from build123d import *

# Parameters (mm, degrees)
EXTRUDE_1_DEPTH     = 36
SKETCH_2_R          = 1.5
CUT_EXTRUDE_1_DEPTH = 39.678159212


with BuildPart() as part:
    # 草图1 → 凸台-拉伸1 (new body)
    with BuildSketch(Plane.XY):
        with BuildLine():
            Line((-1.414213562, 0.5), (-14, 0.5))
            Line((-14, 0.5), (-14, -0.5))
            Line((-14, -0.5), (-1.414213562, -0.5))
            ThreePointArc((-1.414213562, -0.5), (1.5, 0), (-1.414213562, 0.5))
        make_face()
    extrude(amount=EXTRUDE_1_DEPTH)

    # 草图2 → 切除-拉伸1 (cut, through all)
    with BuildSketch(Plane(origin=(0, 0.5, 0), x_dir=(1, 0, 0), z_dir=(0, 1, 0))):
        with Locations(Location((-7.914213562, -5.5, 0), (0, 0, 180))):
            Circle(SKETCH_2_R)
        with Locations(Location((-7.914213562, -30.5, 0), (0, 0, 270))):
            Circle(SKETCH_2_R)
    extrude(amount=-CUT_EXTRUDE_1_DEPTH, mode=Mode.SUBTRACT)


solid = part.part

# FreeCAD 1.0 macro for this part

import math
import FreeCAD as App
import Part
import Sketcher

doc = App.newDocument("Part")
params = doc.addObject("Spreadsheet::Sheet", "Params")
for row, (alias, value) in enumerate([
    ("sketch1_radius", "1.5 mm"),
    ("sketch1_height", "1 mm"),
    ("pad1_length", "36 mm"),
    ("sketch2_diameter", "3 mm"),
], start=1):
    params.set(f"A{row}", alias)
    params.set(f"B{row}", "=" + value)
    params.setAlias(f"B{row}", alias)

body = doc.addObject("PartDesign::Body", "Body")

# Sketch on XY plane
sketch1 = body.newObject("Sketcher::SketchObject", "Sketch")
sketch1.AttachmentSupport = (doc.getObject("XY_Plane"), [""])
sketch1.MapMode = "FlatFace"
sketch1.addGeometry(Part.LineSegment(App.Vector(-1.4, 0.5, 0), App.Vector(-14, 0.5, 0)), False)
sketch1.addGeometry(Part.LineSegment(App.Vector(-14, 0.5, 0), App.Vector(-14, -0.5, 0)), False)
sketch1.addGeometry(Part.LineSegment(App.Vector(-14, -0.5, 0), App.Vector(-1.4, -0.5, 0)), False)
sketch1.addGeometry(Part.ArcOfCircle(Part.Circle(App.Vector(0, 0, 0), App.Vector(0, 0, 1), 1.5), math.radians(-161), math.radians(161)), False)
sketch1.addConstraint(Sketcher.Constraint("Coincident", 0, 2, 1, 1))
sketch1.addConstraint(Sketcher.Constraint("Coincident", 1, 2, 2, 1))
sketch1.addConstraint(Sketcher.Constraint("Coincident", 2, 2, 3, 1))
sketch1.addConstraint(Sketcher.Constraint("Coincident", 3, 2, 0, 1))
sketch1.addConstraint(Sketcher.Constraint("Horizontal", 0))
sketch1.addConstraint(Sketcher.Constraint("Vertical", 1))
sketch1.addConstraint(Sketcher.Constraint("Horizontal", 2))
sketch1.addConstraint(Sketcher.Constraint("Coincident", 3, 3, -1, 1))
sketch1.addConstraint(Sketcher.Constraint("Vertical", 2, 2, 3, 2))
sketch1.addConstraint(Sketcher.Constraint("Radius", 3, 1.5))
sketch1.addConstraint(Sketcher.Constraint("DistanceY", 1, 2, 1, 1, 1.0))
sketch1.addConstraint(Sketcher.Constraint("DistanceX", 0, 2, -1, 1, 14.0))
sketch1.setExpression("Constraints[9]", "Params.sketch1_radius")
sketch1.setExpression("Constraints[10]", "Params.sketch1_height")
pad1 = body.newObject("PartDesign::Pad", "Pad")
pad1.Profile = sketch1
pad1.setExpression("Length", "Params.pad1_length")

# Sketch on XZ plane
sketch2 = body.newObject("Sketcher::SketchObject", "Sketch001")
sketch2.AttachmentSupport = (doc.getObject("XZ_Plane"), [""])
sketch2.MapMode = "FlatFace"
sketch2.AttachmentOffset = App.Placement(App.Vector(0, 0, -0.5), App.Rotation())
sketch2.addGeometry(Part.Circle(App.Vector(-7.9, 5.5, 0), App.Vector(0, 0, 1), 1.5), False)
sketch2.addGeometry(Part.Circle(App.Vector(-7.9, 30.5, 0), App.Vector(0, 0, 1), 1.5), False)
sketch2.addConstraint(Sketcher.Constraint("Equal", 0, 1))
sketch2.addConstraint(Sketcher.Constraint("Vertical", 0, 3, 1, 3))
sketch2.addConstraint(Sketcher.Constraint("Diameter", 0, 3.0))
sketch2.addConstraint(Sketcher.Constraint("DistanceY", 0, 3, 1, 3, 25.0))
sketch2.addConstraint(Sketcher.Constraint("DistanceY", -1, 1, 0, 3, 5.5))
sketch2.addConstraint(Sketcher.Constraint("DistanceX", 0, 3, -1, 1, 7.914214))
sketch2.setExpression("Constraints[2]", "Params.sketch2_diameter")
pocket1 = body.newObject("PartDesign::Pocket", "Pocket")
pocket1.Profile = sketch2
pocket1.Type = "ThroughAll"
pocket1.Reversed = True

doc.recompute()
